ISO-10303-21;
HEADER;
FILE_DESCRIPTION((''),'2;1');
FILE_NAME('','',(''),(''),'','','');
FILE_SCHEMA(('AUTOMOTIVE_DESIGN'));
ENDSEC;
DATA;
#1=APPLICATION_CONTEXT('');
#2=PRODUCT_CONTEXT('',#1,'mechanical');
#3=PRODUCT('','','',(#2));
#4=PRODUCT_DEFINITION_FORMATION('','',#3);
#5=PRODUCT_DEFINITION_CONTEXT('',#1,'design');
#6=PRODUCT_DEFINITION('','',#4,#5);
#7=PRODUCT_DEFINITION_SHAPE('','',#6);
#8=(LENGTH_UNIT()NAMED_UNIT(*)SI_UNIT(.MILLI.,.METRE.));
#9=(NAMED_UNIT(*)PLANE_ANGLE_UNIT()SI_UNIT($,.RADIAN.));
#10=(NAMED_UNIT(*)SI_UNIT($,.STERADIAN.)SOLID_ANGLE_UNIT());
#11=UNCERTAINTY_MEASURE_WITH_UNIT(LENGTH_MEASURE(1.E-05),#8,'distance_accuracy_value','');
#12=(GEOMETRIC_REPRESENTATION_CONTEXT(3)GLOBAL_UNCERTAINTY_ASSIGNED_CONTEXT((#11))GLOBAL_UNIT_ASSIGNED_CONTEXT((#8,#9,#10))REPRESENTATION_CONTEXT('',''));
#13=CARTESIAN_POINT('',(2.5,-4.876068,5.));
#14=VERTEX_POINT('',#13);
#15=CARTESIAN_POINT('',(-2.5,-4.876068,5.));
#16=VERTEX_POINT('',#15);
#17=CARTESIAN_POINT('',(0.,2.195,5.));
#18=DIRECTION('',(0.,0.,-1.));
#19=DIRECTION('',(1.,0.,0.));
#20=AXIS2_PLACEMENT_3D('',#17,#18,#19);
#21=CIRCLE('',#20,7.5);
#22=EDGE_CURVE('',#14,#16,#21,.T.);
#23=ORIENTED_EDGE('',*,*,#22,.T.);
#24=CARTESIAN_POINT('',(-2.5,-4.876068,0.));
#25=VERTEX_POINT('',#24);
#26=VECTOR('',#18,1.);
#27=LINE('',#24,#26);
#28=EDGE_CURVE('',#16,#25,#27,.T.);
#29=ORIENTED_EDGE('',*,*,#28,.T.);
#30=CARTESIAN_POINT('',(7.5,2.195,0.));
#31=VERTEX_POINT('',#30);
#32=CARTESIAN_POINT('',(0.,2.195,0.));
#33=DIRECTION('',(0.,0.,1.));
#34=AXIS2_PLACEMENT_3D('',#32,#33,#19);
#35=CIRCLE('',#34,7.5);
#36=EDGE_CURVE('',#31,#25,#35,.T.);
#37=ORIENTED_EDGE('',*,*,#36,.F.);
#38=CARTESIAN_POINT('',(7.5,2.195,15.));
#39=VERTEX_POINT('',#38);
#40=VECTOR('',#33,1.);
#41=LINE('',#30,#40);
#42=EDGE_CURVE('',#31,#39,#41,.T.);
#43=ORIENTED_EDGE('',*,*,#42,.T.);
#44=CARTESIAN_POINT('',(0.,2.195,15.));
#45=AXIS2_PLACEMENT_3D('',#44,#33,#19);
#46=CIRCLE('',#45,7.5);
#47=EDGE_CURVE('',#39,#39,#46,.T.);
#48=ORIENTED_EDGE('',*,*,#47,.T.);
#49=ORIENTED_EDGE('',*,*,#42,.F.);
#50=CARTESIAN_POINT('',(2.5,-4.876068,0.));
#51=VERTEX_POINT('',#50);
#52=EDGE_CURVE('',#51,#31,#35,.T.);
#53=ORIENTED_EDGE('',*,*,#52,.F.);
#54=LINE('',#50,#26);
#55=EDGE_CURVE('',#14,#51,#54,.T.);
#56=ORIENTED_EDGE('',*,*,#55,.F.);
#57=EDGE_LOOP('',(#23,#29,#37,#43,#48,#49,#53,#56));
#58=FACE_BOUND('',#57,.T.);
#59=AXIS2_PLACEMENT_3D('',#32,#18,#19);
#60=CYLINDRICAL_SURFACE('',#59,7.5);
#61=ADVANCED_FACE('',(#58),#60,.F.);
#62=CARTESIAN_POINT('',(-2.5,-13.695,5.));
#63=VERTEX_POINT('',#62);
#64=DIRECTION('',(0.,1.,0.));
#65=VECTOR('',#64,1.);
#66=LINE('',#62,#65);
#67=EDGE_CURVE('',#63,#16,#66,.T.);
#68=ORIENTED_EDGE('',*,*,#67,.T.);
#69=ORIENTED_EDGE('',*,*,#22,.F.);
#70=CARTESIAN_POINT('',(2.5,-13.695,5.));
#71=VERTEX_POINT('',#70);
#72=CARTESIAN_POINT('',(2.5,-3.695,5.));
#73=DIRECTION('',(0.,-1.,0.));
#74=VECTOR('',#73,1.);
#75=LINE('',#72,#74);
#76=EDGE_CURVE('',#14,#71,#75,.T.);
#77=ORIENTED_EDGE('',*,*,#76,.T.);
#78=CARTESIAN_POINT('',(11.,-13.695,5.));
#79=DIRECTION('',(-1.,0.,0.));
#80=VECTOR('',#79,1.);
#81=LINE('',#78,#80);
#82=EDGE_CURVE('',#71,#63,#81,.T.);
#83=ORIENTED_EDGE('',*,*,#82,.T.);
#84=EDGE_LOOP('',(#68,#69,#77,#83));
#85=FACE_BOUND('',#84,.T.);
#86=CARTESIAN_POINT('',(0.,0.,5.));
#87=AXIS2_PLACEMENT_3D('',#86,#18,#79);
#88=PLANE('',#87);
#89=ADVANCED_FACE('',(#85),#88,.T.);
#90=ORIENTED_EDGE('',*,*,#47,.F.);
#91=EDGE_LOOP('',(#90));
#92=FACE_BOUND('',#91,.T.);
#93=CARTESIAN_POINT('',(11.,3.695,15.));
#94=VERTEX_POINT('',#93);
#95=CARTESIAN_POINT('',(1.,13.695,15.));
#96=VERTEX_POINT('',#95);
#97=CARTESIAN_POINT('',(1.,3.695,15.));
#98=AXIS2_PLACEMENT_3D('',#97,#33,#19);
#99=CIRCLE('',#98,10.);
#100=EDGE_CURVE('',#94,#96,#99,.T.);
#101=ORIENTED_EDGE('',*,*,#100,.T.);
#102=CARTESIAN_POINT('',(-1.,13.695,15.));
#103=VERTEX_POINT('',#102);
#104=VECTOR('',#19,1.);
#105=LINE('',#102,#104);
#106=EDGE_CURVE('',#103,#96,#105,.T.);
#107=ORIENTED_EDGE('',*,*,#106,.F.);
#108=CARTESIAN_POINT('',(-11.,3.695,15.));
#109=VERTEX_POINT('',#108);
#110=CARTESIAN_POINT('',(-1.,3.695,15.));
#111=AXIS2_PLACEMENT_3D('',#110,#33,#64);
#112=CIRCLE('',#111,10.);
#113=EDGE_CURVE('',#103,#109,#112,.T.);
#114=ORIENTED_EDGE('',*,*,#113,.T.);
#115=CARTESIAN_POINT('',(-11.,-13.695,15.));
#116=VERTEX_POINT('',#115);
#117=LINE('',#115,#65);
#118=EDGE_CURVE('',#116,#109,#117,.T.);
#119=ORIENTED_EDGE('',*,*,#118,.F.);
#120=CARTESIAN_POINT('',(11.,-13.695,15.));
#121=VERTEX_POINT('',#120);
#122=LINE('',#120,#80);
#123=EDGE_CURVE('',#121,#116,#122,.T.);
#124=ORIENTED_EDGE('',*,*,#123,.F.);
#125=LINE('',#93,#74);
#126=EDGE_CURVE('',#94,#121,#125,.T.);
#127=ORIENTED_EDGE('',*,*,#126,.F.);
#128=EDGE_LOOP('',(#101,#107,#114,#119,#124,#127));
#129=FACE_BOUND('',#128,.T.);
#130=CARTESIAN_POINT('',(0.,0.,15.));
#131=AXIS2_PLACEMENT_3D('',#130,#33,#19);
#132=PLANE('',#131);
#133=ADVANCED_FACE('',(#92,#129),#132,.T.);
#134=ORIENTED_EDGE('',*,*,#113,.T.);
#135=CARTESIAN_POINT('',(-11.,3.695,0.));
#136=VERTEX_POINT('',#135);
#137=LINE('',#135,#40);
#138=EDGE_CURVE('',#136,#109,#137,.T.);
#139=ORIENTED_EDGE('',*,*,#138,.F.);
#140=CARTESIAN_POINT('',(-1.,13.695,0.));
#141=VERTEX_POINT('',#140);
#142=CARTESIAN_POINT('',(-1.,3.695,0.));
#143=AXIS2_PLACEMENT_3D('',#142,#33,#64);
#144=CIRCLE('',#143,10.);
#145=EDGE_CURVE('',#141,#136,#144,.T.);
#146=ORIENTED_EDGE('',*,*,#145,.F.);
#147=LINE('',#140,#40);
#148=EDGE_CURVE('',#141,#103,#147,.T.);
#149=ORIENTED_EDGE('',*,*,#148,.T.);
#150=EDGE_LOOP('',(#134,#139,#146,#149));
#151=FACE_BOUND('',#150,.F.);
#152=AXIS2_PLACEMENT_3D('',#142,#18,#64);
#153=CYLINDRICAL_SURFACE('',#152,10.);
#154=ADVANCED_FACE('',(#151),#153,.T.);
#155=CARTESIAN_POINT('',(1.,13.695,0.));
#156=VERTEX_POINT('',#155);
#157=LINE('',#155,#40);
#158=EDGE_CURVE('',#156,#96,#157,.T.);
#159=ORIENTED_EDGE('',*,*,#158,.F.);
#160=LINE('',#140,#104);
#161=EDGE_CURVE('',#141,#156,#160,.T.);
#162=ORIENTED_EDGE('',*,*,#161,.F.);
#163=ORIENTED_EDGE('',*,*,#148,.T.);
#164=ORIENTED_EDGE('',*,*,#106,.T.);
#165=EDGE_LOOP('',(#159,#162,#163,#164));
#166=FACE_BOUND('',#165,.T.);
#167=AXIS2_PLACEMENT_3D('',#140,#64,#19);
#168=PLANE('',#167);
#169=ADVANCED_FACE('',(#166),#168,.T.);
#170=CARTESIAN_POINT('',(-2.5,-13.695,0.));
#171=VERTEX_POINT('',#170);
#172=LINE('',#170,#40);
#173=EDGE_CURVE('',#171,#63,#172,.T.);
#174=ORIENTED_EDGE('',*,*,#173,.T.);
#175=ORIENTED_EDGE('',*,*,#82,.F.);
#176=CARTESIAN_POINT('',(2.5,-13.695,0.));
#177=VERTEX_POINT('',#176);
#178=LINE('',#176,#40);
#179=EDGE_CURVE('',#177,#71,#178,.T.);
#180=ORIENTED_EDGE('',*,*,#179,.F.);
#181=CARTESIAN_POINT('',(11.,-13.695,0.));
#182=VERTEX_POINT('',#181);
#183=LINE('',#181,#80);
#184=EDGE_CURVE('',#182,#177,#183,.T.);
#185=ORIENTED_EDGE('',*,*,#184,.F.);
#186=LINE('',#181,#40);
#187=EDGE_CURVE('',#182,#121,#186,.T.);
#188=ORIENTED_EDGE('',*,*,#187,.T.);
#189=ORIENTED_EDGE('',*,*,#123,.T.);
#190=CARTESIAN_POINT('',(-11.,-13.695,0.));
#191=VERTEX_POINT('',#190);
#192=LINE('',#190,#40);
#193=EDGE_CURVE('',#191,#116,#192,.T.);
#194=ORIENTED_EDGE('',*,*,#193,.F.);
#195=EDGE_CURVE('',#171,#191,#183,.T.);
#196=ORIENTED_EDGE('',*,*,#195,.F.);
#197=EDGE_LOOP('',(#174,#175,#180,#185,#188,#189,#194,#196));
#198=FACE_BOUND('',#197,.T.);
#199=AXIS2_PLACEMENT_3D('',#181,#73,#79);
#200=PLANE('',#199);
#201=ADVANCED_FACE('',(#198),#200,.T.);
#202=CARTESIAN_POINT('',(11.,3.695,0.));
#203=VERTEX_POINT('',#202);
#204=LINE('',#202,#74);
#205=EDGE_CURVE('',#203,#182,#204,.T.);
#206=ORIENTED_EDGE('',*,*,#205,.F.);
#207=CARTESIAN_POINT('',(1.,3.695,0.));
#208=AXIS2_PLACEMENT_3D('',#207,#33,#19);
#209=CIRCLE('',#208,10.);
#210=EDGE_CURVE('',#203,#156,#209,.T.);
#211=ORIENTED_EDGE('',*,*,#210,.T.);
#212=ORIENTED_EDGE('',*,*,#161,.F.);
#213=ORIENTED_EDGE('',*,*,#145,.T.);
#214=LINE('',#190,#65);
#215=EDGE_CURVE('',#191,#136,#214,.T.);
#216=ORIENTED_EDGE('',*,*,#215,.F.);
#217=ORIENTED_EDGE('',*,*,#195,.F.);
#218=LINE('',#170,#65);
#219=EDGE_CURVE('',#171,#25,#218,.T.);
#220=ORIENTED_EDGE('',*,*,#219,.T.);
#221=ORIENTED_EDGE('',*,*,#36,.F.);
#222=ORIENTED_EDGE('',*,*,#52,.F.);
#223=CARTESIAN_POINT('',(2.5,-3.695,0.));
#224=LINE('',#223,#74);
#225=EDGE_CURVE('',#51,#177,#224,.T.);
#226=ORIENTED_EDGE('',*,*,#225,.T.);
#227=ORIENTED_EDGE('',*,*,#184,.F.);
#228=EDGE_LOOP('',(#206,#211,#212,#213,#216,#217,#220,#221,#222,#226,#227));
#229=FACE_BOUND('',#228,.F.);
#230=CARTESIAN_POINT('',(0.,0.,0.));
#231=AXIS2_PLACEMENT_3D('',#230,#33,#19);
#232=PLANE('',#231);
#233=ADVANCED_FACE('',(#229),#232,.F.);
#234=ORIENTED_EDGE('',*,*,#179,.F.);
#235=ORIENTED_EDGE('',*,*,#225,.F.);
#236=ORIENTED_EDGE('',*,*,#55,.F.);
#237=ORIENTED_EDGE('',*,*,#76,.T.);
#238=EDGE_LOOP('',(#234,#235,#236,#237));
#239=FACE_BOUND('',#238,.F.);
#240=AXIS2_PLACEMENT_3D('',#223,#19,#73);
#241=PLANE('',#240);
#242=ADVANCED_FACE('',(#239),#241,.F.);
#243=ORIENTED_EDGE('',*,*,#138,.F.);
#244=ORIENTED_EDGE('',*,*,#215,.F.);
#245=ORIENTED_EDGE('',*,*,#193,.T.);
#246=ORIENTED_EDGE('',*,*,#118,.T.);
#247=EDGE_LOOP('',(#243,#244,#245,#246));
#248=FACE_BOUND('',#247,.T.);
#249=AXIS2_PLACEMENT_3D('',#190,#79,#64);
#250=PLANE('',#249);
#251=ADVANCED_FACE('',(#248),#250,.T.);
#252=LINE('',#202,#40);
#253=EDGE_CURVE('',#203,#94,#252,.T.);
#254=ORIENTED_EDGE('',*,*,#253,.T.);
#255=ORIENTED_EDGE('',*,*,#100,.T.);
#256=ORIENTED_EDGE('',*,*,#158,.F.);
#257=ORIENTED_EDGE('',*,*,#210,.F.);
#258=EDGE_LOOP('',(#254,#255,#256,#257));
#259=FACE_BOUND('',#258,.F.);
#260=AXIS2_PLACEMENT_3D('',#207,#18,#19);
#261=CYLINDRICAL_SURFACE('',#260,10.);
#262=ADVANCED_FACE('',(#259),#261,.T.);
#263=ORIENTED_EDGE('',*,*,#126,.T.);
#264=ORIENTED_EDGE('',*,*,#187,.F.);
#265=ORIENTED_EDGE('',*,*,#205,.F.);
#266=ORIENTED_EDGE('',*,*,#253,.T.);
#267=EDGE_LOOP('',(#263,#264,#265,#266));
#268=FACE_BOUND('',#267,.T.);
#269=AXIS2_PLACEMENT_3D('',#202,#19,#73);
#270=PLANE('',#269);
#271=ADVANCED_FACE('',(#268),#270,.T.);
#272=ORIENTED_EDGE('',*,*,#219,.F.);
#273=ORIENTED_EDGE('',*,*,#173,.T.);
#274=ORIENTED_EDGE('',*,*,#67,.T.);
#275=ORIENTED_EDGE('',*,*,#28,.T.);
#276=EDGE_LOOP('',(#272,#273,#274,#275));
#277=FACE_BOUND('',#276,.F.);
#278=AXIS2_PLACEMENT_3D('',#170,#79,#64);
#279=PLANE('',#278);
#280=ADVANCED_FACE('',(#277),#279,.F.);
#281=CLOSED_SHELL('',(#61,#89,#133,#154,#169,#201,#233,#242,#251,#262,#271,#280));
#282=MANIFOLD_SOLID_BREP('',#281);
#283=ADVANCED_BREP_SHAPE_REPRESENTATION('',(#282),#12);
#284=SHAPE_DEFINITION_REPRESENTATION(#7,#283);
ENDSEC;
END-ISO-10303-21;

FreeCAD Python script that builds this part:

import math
import FreeCAD as App
import Part
import Sketcher


def add_polygon(sketch, points):
    """Adds a closed chain of lines whose ends are joined by coincident constraints."""
    first, n = sketch.GeometryCount, len(points)
    for a, b in zip(points, points[1:] + points[:1]):
        sketch.addGeometry(Part.LineSegment(App.Vector(*a, 0), App.Vector(*b, 0)), False)
    for i in range(n):
        sketch.addConstraint(Sketcher.Constraint("Coincident", first + i, 2, first + (i + 1) % n, 1))

doc = App.newDocument("Part")
params = doc.addObject("Spreadsheet::Sheet", "Params")
for row, (alias, value) in enumerate([
    ("sketch1_diameter", "15 mm"),
    ("sketch1_radius", "10 mm"),
    ("sketch1_width", "22 mm"),
    ("pad1_length", "15 mm"),
    ("sketch2_width", "5 mm"),
    ("sketch2_height", "10 mm"),
    ("pocket1_length", "5 mm"),
], start=1):
    params.set(f"A{row}", alias)
    params.set(f"B{row}", "=" + value)
    params.setAlias(f"B{row}", alias)

body = doc.addObject("PartDesign::Body", "Body")

# Sketch on XY plane
sketch1 = body.newObject("Sketcher::SketchObject", "Sketch")
sketch1.AttachmentSupport = (doc.getObject("XY_Plane"), [""])
sketch1.MapMode = "FlatFace"
sketch1.addGeometry([
    Part.LineSegment(App.Vector(-11, -13.7, 0), App.Vector(11, -13.7, 0)),  # 0
    Part.LineSegment(App.Vector(11, -13.7, 0), App.Vector(11, 3.7, 0)),  # 1
    Part.ArcOfCircle(Part.Circle(App.Vector(1, 3.7, 0), App.Vector(0, 0, 1), 10), math.radians(0), math.radians(90)),  # 2
    Part.LineSegment(App.Vector(1, 13.7, 0), App.Vector(-1, 13.7, 0)),  # 3
    Part.ArcOfCircle(Part.Circle(App.Vector(-1, 3.7, 0), App.Vector(0, 0, 1), 10), math.radians(90), math.radians(180)),  # 4
    Part.LineSegment(App.Vector(-11, 3.7, 0), App.Vector(-11, -13.7, 0)),  # 5
    Part.Circle(App.Vector(0, 2.2, 0), App.Vector(0, 0, 1), 7.5),  # 6
], False)
sketch1.addConstraint([
    Sketcher.Constraint("Coincident", 0, 2, 1, 1),
    Sketcher.Constraint("Tangent", 1, 2, 2, 1),
    Sketcher.Constraint("Tangent", 2, 2, 3, 1),
    Sketcher.Constraint("Tangent", 3, 2, 4, 1),
    Sketcher.Constraint("Tangent", 4, 2, 5, 1),
    Sketcher.Constraint("Coincident", 5, 2, 0, 1),
    Sketcher.Constraint("Horizontal", 0),
    Sketcher.Constraint("Vertical", 1),
    Sketcher.Constraint("Horizontal", 3),
    Sketcher.Constraint("Vertical", 5),
    Sketcher.Constraint("Equal", 2, 4),
    Sketcher.Constraint("PointOnObject", 6, 3, -2),
    Sketcher.Constraint("Diameter", 6, 15.0),
    Sketcher.Constraint("Radius", 2, 10.0),
    Sketcher.Constraint("DistanceX", 0, 1, 0, 2, 22.0),
    Sketcher.Constraint("DistanceX", -1, 1, 0, 2, 11.0),
    Sketcher.Constraint("DistanceY", 6, 3, 2, 2, 11.5),
    Sketcher.Constraint("DistanceY", 0, 2, 2, 2, 27.39),
    Sketcher.Constraint("DistanceY", -1, 1, 2, 3, 3.695),
])
sketch1.setExpression("Constraints[12]", "Params.sketch1_diameter")
sketch1.setExpression("Constraints[13]", "Params.sketch1_radius")
sketch1.setExpression("Constraints[14]", "Params.sketch1_width")
pad1 = body.newObject("PartDesign::Pad", "Pad")
pad1.Profile = sketch1
pad1.setExpression("Length", "Params.pad1_length")

# Sketch on XY plane
sketch2 = body.newObject("Sketcher::SketchObject", "Sketch001")
sketch2.AttachmentSupport = (doc.getObject("XY_Plane"), [""])
sketch2.MapMode = "FlatFace"
add_polygon(sketch2, [(2, -4), (2, -14), (-2, -14), (-2, -4)])  # lines 0-3
sketch2.addConstraint([
    Sketcher.Constraint("Vertical", 0),
    Sketcher.Constraint("Horizontal", 1),
    Sketcher.Constraint("Vertical", 2),
    Sketcher.Constraint("Horizontal", 3),
    Sketcher.Constraint("DistanceX", 1, 2, 1, 1, 5.0),
    Sketcher.Constraint("DistanceY", 0, 2, 0, 1, 10.0),
    Sketcher.Constraint("DistanceX", -1, 1, 0, 2, 2.5),
    Sketcher.Constraint("DistanceY", 0, 2, -1, 1, 13.695),
])
sketch2.setExpression("Constraints[8]", "Params.sketch2_width")
sketch2.setExpression("Constraints[9]", "Params.sketch2_height")
pocket1 = body.newObject("PartDesign::Pocket", "Pocket")
pocket1.Profile = sketch2
pocket1.setExpression("Length", "Params.pocket1_length")
pocket1.Reversed = True

doc.recompute()
